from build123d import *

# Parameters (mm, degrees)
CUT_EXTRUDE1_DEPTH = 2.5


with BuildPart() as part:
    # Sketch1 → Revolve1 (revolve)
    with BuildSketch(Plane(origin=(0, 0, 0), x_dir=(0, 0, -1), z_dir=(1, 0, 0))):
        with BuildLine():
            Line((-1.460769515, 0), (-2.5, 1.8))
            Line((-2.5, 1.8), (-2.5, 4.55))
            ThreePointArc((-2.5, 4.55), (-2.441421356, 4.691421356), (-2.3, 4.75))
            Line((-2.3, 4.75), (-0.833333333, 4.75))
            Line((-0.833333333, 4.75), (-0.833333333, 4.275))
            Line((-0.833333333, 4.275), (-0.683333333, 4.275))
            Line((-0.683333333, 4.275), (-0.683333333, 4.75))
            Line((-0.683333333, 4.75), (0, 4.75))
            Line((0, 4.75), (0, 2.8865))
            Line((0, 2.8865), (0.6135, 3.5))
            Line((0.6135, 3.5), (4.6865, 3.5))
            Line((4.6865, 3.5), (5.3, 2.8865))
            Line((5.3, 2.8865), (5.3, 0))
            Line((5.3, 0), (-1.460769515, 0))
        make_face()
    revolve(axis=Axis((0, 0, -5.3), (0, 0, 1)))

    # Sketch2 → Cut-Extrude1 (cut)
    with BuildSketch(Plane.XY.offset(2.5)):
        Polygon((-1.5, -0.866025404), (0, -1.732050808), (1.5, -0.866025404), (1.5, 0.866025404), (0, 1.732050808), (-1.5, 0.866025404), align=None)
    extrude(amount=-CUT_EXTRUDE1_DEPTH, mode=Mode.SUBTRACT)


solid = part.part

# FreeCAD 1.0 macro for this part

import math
import FreeCAD as App
import Part
import Sketcher

V = App.Vector
Q = App.Units.Quantity


def add_polygon(sketch, points):
    """Adds a closed chain of lines whose ends are joined by coincident constraints."""
    first, n = sketch.GeometryCount, len(points)
    for a, b in zip(points, points[1:] + points[:1]):
        sketch.addGeometry(Part.LineSegment(App.Vector(*a, 0), App.Vector(*b, 0)), False)
    for i in range(n):
        sketch.addConstraint(Sketcher.Constraint("Coincident", first + i, 2, first + (i + 1) % n, 1))

doc = App.newDocument("Part")
body = doc.addObject("PartDesign::Body", "Body")

# Sketch on YZ plane
sketch1 = doc.addObject("Sketcher::SketchObject", "Sketch")
body.addObject(sketch1)
sketch1.AttachmentSupport = (doc.YZ_Plane, [""])
sketch1.MapMode = "FlatFace"
sketch1.addGeometry(Part.LineSegment(V(1.8, 2.5, 0), V(0, 1.46077, 0)), False)
sketch1.addGeometry(Part.LineSegment(V(0, 1.46077, 0), V(0, -5.3, 0)), False)
sketch1.addGeometry(Part.LineSegment(V(0, -5.3, 0), V(2.8865, -5.3, 0)), False)
sketch1.addGeometry(Part.LineSegment(V(2.8865, -5.3, 0), V(3.5, -4.6865, 0)), False)
sketch1.addGeometry(Part.LineSegment(V(3.5, -4.6865, 0), V(3.5, -0.6135, 0)), False)
sketch1.addGeometry(Part.LineSegment(V(3.5, -0.6135, 0), V(2.8865, 0, 0)), False)
sketch1.addGeometry(Part.LineSegment(V(2.8865, 0, 0), V(4.75, 0, 0)), False)
sketch1.addGeometry(Part.LineSegment(V(4.75, 0, 0), V(4.75, 0.683333, 0)), False)
sketch1.addGeometry(Part.LineSegment(V(4.75, 0.683333, 0), V(4.275, 0.683333, 0)), False)
sketch1.addGeometry(Part.LineSegment(V(4.275, 0.683333, 0), V(4.275, 0.833333, 0)), False)
sketch1.addGeometry(Part.LineSegment(V(4.275, 0.833333, 0), V(4.75, 0.833333, 0)), False)
sketch1.addGeometry(Part.LineSegment(V(4.75, 0.833333, 0), V(4.75, 2.3, 0)), False)
sketch1.addGeometry(Part.ArcOfCircle(Part.Circle(V(4.55, 2.3, 0), V(0, 0, 1), 0.2), math.radians(0), math.radians(90)), False)
sketch1.addGeometry(Part.LineSegment(V(4.55, 2.5, 0), V(1.8, 2.5, 0)), False)
sketch1.addConstraint(Sketcher.Constraint("Coincident", 0, 2, 1, 1))
sketch1.addConstraint(Sketcher.Constraint("Coincident", 1, 2, 2, 1))
sketch1.addConstraint(Sketcher.Constraint("Coincident", 2, 2, 3, 1))
sketch1.addConstraint(Sketcher.Constraint("Coincident", 3, 2, 4, 1))
sketch1.addConstraint(Sketcher.Constraint("Coincident", 4, 2, 5, 1))
sketch1.addConstraint(Sketcher.Constraint("Coincident", 5, 2, 6, 1))
sketch1.addConstraint(Sketcher.Constraint("Coincident", 6, 2, 7, 1))
sketch1.addConstraint(Sketcher.Constraint("Coincident", 7, 2, 8, 1))
sketch1.addConstraint(Sketcher.Constraint("Coincident", 8, 2, 9, 1))
sketch1.addConstraint(Sketcher.Constraint("Coincident", 9, 2, 10, 1))
sketch1.addConstraint(Sketcher.Constraint("Coincident", 10, 2, 11, 1))
sketch1.addConstraint(Sketcher.Constraint("Tangent", 11, 2, 12, 1))
sketch1.addConstraint(Sketcher.Constraint("Tangent", 12, 2, 13, 1))
sketch1.addConstraint(Sketcher.Constraint("Coincident", 13, 2, 0, 1))
sketch1.addConstraint(Sketcher.Constraint("Vertical", 1))
sketch1.addConstraint(Sketcher.Constraint("Horizontal", 2))
sketch1.addConstraint(Sketcher.Constraint("Vertical", 4))
sketch1.addConstraint(Sketcher.Constraint("Horizontal", 6))
sketch1.addConstraint(Sketcher.Constraint("Vertical", 7))
sketch1.addConstraint(Sketcher.Constraint("Horizontal", 8))
sketch1.addConstraint(Sketcher.Constraint("Vertical", 9))
sketch1.addConstraint(Sketcher.Constraint("Horizontal", 10))
sketch1.addConstraint(Sketcher.Constraint("Vertical", 11))
sketch1.addConstraint(Sketcher.Constraint("Horizontal", 13))
sketch1.addConstraint(Sketcher.Constraint("PointOnObject", 0, 2, -2))
sketch1.addConstraint(Sketcher.Constraint("PointOnObject", 5, 2, -1))
sketch1.addConstraint(Sketcher.Constraint("Perpendicular", 3, 5))
sketch1.addConstraint(Sketcher.Constraint("Vertical", 2, 2, 5, 2))
sketch1.addConstraint(Sketcher.Constraint("Vertical", 7, 2, 10, 2))
sketch1.addConstraint(Sketcher.Constraint("Equal", 3, 5))
sketch1.addConstraint(Sketcher.Constraint("Radius", 12, 0.2))
sketch1.addConstraint(Sketcher.Constraint("Angle", 0, Q("-150 deg")))
sketch1.addConstraint(Sketcher.Constraint("DistanceX", 13, 2, 13, 1, 2.75))
sketch1.addConstraint(Sketcher.Constraint("DistanceY", 9, 1, 9, 2, 0.15))
sketch1.addConstraint(Sketcher.Constraint("DistanceY", -1, 1, 12, 3, 2.3))
sketch1.addConstraint(Sketcher.Constraint("DistanceY", 1, 2, -1, 1, 5.3))
sketch1.addConstraint(Sketcher.Constraint("DistanceX", -1, 1, 3, 2, 3.5))
sketch1.addConstraint(Sketcher.Constraint("DistanceX", -1, 1, 13, 2, 1.8))
sketch1.addConstraint(Sketcher.Constraint("DistanceX", 8, 2, 8, 1, 0.475))
sketch1.addConstraint(Sketcher.Constraint("DistanceY", 4, 1, 4, 2, 4.073))
sketch1.addConstraint(Sketcher.Constraint("DistanceY", 7, 1, 7, 2, 0.683333))
revolution = doc.addObject("PartDesign::Revolution", "Revolution")
body.addObject(revolution)
revolution.Profile = sketch1
revolution.ReferenceAxis = (sketch1, ["V_Axis"])
revolution.Angle = 360

# Sketch on XY plane
sketch2 = doc.addObject("Sketcher::SketchObject", "Sketch001")
body.addObject(sketch2)
sketch2.AttachmentSupport = (doc.XY_Plane, [""])
sketch2.MapMode = "FlatFace"
sketch2.AttachmentOffset = App.Placement(V(0, 0, 2.5), App.Rotation())
add_polygon(sketch2, [(-1.5, -0.866025), (0, -1.732051), (1.5, -0.866025), (1.5, 0.866025), (0, 1.732051), (-1.5, 0.866025)])  # lines 0-5
sketch2.addConstraint(Sketcher.Constraint("Vertical", 2))
sketch2.addConstraint(Sketcher.Constraint("Vertical", 5))
sketch2.addConstraint(Sketcher.Constraint("Symmetric", 0, 2, 3, 2, -1, 1))
sketch2.addConstraint(Sketcher.Constraint("Symmetric", 1, 2, 4, 2, -1, 1))
sketch2.addConstraint(Sketcher.Constraint("PointOnObject", 0, 2, -2))
sketch2.addConstraint(Sketcher.Constraint("Parallel", 0, 3))
sketch2.addConstraint(Sketcher.Constraint("Horizontal", 2, 2, 4, 2))
sketch2.addConstraint(Sketcher.Constraint("Angle", 0, Q("-30 deg")))
sketch2.addConstraint(Sketcher.Constraint("DistanceX", 4, 2, 2, 2, 3.0))
sketch2.addConstraint(Sketcher.Constraint("DistanceY", 2, 1, 2, 2, 1.732051))
pocket1 = doc.addObject("PartDesign::Pocket", "Pocket")
body.addObject(pocket1)
pocket1.Profile = sketch2
pocket1.Length = 2.5

doc.recompute()
